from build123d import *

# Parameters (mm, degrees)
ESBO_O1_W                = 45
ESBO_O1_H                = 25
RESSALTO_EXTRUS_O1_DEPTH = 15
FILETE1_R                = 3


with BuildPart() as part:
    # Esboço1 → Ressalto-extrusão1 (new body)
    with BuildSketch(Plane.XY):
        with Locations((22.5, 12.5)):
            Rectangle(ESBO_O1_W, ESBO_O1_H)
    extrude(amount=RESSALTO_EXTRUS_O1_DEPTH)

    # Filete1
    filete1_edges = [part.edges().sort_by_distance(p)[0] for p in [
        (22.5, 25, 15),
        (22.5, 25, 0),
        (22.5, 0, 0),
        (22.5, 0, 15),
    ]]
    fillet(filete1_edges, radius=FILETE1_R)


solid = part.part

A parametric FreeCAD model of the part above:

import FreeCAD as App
import Part
import Sketcher
from FreeCAD import Vector


def edges_at(feature, points):
    """Names of the edges that pass closest to the given points."""
    edges = feature.Shape.Edges
    near = lambda p: min(range(len(edges)), key=lambda i: edges[i].distToShape(Part.Vertex(*p))[0])
    return sorted({f"Edge{near(p) + 1}" for p in points})


def add_polygon(sketch, points):
    """Adds a closed chain of lines whose ends are joined by coincident constraints."""
    first, n = sketch.GeometryCount, len(points)
    for a, b in zip(points, points[1:] + points[:1]):
        sketch.addGeometry(Part.LineSegment(App.Vector(*a, 0), App.Vector(*b, 0)), False)
    for i in range(n):
        sketch.addConstraint(Sketcher.Constraint("Coincident", first + i, 2, first + (i + 1) % n, 1))

doc = App.newDocument("Part")
params = doc.addObject("Spreadsheet::Sheet", "Params")
for row, (alias, value) in enumerate([
    ("sketch1_width", "45 mm"),
    ("sketch1_height", "25 mm"),
    ("pad1_length", "15 mm"),
    ("fillet_radius", "3 mm"),
], start=1):
    params.set(f"A{row}", alias)
    params.set(f"B{row}", "=" + value)
    params.setAlias(f"B{row}", alias)

body = doc.addObject("PartDesign::Body", "Body")

sketch1 = body.newObject("Sketcher::SketchObject", "Sketch")
sketch1.AttachmentSupport = (doc.getObject("XY_Plane"), [""])
sketch1.MapMode = "FlatFace"
add_polygon(sketch1, [(0, 25), (0, 0), (45, 0), (45, 25)])
sketch1.addConstraint([
    Sketcher.Constraint("Vertical", 0),
    Sketcher.Constraint("Horizontal", 1),
    Sketcher.Constraint("Vertical", 2),
    Sketcher.Constraint("Horizontal", 3),
    Sketcher.Constraint("Coincident", 0, 2, -1, 1),
    Sketcher.Constraint("DistanceX", 1, 1, 1, 2, 45.0),
    Sketcher.Constraint("DistanceY", 0, 2, 0, 1, 25.0),
])
sketch1.setExpression("Constraints[9]", "Params.sketch1_width")
sketch1.setExpression("Constraints[10]", "Params.sketch1_height")
pad1 = body.newObject("PartDesign::Pad", "Pad")
pad1.Profile = sketch1
pad1.setExpression("Length", "Params.pad1_length")
doc.recompute()

fillet = body.newObject("PartDesign::Fillet", "Fillet")
fillet.Base = (pad1, edges_at(pad1, [
    (22.5, 25, 15),
    (22.5, 25, 0),
    (22.5, 0, 0),
    (22.5, 0, 15),
]))
fillet.setExpression("Radius", "Params.fillet_radius")

doc.recompute()
